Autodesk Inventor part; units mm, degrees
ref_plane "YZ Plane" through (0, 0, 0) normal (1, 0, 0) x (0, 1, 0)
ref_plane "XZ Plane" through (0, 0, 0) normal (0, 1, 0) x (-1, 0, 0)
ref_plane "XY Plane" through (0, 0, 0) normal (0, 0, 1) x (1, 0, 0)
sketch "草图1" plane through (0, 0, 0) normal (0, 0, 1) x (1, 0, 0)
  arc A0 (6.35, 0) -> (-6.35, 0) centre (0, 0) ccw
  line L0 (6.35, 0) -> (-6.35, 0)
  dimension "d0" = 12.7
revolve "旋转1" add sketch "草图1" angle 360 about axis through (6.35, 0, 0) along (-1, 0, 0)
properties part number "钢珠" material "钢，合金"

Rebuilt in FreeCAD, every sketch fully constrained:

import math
import FreeCAD as App
import Part
import Sketcher
from FreeCAD import Vector
Q = App.Units.Quantity

doc = App.newDocument("Part")
body = doc.addObject("PartDesign::Body", "Body")

# Sketch on XY plane
sketch1 = doc.addObject("Sketcher::SketchObject", "Sketch")
body.addObject(sketch1)
sketch1.AttachmentSupport = (doc.XY_Plane, [""])
sketch1.MapMode = "FlatFace"
sketch1.addGeometry(Part.LineSegment(Vector(-6, 0, 0), Vector(6, 0, 0)), False)
sketch1.addGeometry(Part.ArcOfCircle(Part.Circle(Vector(0, 0, 0), Vector(0, 0, 1), 6), math.radians(0), math.radians(180)), False)
sketch1.addConstraint(Sketcher.Constraint("Coincident", 0, 1, 1, 2))
sketch1.addConstraint(Sketcher.Constraint("Coincident", 1, 1, 0, 2))
sketch1.addConstraint(Sketcher.Constraint("Horizontal", 0))
sketch1.addConstraint(Sketcher.Constraint("Coincident", 1, 3, -1, 1))
sketch1.addConstraint(Sketcher.Constraint("PointOnObject", 0, 1, -1))
sketch1.addConstraint(Sketcher.Constraint("Radius", 1, Q("0.25 in")))
revolution = doc.addObject("PartDesign::Revolution", "Revolution")
body.addObject(revolution)
revolution.Profile = sketch1
revolution.ReferenceAxis = (sketch1, ["H_Axis"])
revolution.Angle = 360

doc.recompute()
